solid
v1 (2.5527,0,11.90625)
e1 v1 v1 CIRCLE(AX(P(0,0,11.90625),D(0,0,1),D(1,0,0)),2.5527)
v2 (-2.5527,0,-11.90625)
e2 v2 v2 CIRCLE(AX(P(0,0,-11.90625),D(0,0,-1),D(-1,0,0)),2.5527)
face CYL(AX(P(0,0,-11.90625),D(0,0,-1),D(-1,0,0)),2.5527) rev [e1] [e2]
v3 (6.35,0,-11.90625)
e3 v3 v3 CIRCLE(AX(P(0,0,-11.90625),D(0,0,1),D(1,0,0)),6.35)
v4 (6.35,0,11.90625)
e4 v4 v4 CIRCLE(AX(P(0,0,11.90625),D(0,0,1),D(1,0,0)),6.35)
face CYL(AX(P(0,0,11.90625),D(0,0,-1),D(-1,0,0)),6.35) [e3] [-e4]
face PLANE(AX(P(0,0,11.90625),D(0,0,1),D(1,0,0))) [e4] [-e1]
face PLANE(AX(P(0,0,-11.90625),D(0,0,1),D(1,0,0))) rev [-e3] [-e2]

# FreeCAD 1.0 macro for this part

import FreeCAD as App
import Part
import Sketcher
Q = App.Units.Quantity

doc = App.newDocument("Part")
body = doc.addObject("PartDesign::Body", "Body")

# Sketch on XY plane
sketch1 = doc.addObject("Sketcher::SketchObject", "Sketch")
body.addObject(sketch1)
sketch1.AttachmentSupport = (doc.XY_Plane, [""])
sketch1.MapMode = "FlatFace"
sketch1.addGeometry(Part.Circle(App.Vector(0, 0, 0), App.Vector(0, 0, 1), 6), False)
sketch1.addConstraint([
    Sketcher.Constraint("Coincident", 0, 3, -1, 1),
    Sketcher.Constraint("Diameter", 0, Q("0.5 in")),
])
pad1 = doc.addObject("PartDesign::Pad", "Pad")
body.addObject(pad1)
pad1.Profile = sketch1
pad1.Length = Q("0.9375 in")
pad1.Midplane = True

# Sketch on XY plane
sketch2 = doc.addObject("Sketcher::SketchObject", "Sketch001")
body.addObject(sketch2)
sketch2.AttachmentSupport = (doc.XY_Plane, [""])
sketch2.MapMode = "FlatFace"
sketch2.AttachmentOffset = App.Placement(App.Vector(0, 0, 0.46875 * 25.4), App.Rotation())
sketch2.addGeometry(Part.Circle(App.Vector(0, 0, 0), App.Vector(0, 0, 1), 2.6), False)
sketch2.addConstraint([
    Sketcher.Constraint("Coincident", 0, 3, -1, 1),
    Sketcher.Constraint("Diameter", 0, Q("0.201 in")),
])
doc.recompute()
hole = doc.addObject("PartDesign::Hole", "Hole")
body.addObject(hole)
hole.Profile = sketch2
hole.ThreadType = "None"
hole.Diameter = Q("0.201 in")
hole.DepthType = "Dimension"
hole.Depth = Q("0.65 in")
hole.DrillPoint = "Angled"
hole.DrillPointAngle = 118

# Sketch on XY plane
sketch3 = doc.addObject("Sketcher::SketchObject", "Sketch002")
body.addObject(sketch3)
sketch3.AttachmentSupport = (doc.XY_Plane, [""])
sketch3.MapMode = "FlatFace"
sketch3.AttachmentOffset = App.Placement(App.Vector(0, 0, -0.46875 * 25.4), App.Rotation())
sketch3.addGeometry(Part.Circle(App.Vector(0, 0, 0), App.Vector(0, 0, 1), 2.6), False)
sketch3.addConstraint([
    Sketcher.Constraint("Coincident", 0, 3, -1, 1),
    Sketcher.Constraint("Diameter", 0, Q("0.201 in")),
])
doc.recompute()
hole2 = doc.addObject("PartDesign::Hole", "Hole001")
body.addObject(hole2)
hole2.Profile = sketch3
hole2.ThreadType = "None"
hole2.Diameter = Q("0.201 in")
hole2.DepthType = "Dimension"
hole2.Depth = Q("0.65 in")
hole2.DrillPoint = "Angled"
hole2.DrillPointAngle = 118
hole2.Reversed = True

doc.recompute()
